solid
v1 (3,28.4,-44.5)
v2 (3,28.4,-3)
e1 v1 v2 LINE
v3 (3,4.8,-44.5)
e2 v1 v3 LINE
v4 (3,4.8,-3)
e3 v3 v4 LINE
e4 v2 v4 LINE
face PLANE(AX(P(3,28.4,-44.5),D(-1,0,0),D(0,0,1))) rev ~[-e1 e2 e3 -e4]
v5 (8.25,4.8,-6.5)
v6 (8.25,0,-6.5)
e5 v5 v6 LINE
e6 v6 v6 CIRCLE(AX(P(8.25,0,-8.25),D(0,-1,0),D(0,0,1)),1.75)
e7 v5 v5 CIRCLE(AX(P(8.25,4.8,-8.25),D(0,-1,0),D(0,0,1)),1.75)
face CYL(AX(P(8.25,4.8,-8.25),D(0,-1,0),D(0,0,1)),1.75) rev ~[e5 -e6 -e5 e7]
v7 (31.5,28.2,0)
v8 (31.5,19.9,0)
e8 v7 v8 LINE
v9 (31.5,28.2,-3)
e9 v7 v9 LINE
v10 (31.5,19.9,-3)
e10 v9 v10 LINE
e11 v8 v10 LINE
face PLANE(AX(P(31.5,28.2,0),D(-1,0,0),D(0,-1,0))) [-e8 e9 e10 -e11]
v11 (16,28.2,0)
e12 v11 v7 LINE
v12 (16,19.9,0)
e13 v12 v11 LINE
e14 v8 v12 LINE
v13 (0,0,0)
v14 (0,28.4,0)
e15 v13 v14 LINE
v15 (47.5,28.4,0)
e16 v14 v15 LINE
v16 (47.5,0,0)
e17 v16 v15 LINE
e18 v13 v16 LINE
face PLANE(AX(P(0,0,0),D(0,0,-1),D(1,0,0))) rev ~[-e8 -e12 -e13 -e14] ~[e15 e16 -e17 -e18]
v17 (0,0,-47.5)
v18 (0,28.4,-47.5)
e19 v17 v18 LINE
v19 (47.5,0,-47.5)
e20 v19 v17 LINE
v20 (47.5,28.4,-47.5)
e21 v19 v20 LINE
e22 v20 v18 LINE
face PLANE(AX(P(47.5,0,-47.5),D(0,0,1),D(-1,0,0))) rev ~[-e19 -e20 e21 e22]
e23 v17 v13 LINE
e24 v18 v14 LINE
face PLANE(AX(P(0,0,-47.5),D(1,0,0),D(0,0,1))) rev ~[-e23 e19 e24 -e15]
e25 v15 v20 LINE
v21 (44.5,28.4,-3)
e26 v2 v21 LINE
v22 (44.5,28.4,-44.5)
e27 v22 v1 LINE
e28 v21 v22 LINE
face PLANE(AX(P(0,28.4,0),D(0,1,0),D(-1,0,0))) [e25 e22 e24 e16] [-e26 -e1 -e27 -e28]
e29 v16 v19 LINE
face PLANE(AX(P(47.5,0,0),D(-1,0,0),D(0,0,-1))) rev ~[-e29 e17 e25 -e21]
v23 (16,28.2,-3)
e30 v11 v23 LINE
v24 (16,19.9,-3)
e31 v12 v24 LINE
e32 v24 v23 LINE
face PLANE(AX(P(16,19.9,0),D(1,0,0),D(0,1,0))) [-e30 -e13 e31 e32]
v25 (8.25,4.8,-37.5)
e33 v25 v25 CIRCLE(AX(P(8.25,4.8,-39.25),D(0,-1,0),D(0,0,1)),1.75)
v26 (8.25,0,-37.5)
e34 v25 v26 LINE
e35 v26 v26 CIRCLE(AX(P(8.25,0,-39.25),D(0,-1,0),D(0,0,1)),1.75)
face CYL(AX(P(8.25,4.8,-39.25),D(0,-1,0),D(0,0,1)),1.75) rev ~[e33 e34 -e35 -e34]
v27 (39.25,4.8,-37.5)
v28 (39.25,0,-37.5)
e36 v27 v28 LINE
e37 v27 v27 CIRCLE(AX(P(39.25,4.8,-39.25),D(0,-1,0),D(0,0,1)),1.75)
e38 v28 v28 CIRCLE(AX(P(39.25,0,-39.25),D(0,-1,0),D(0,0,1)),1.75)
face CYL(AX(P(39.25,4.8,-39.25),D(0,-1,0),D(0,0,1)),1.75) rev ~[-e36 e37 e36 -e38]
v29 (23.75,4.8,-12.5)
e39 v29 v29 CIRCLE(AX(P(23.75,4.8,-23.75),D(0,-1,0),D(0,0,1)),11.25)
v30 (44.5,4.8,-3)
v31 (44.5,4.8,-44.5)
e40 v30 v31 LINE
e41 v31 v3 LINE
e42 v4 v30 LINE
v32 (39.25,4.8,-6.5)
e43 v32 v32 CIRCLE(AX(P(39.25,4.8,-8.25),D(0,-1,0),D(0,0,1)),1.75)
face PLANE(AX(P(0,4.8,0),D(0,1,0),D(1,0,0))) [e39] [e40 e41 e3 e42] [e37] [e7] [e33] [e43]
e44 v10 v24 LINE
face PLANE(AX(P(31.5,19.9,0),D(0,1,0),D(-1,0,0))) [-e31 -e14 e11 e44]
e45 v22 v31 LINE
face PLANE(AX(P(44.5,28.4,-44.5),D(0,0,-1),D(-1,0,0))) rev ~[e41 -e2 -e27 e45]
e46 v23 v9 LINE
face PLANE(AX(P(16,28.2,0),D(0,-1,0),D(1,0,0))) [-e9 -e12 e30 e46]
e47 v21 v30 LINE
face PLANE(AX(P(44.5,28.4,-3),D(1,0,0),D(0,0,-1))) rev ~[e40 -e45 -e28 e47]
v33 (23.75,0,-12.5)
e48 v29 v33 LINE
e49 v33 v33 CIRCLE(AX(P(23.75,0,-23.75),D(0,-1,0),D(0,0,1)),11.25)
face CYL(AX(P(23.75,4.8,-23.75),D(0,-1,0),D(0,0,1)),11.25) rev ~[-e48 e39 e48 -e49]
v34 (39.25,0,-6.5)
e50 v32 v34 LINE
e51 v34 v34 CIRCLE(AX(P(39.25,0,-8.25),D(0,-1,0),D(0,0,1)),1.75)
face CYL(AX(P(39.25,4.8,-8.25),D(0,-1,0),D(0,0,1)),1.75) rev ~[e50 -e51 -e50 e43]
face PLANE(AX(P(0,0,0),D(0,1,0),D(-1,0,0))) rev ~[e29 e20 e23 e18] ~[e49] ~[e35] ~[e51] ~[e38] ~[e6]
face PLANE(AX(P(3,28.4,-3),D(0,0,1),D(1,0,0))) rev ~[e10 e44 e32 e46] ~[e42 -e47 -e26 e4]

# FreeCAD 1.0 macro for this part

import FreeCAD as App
import Part
import Sketcher
from FreeCAD import Vector

doc = App.newDocument("Part")
body = doc.addObject("PartDesign::Body", "Body")

# Sketch on XZ plane
sketch1 = doc.addObject("Sketcher::SketchObject", "Sketch")
body.addObject(sketch1)
sketch1.AttachmentSupport = (doc.XZ_Plane, [""])
sketch1.MapMode = "FlatFace"
sketch1.addGeometry(Part.LineSegment(Vector(0, -48, 0), Vector(0, 0, 0)), False)
sketch1.addGeometry(Part.LineSegment(Vector(0, 0, 0), Vector(48, 0, 0)), False)
sketch1.addGeometry(Part.LineSegment(Vector(48, 0, 0), Vector(48, -48, 0)), False)
sketch1.addGeometry(Part.LineSegment(Vector(48, -48, 0), Vector(0, -48, 0)), False)
sketch1.addConstraint(Sketcher.Constraint("Coincident", 0, 2, 1, 1))
sketch1.addConstraint(Sketcher.Constraint("Coincident", 1, 2, 2, 1))
sketch1.addConstraint(Sketcher.Constraint("Coincident", 2, 2, 3, 1))
sketch1.addConstraint(Sketcher.Constraint("Coincident", 3, 2, 0, 1))
sketch1.addConstraint(Sketcher.Constraint("Vertical", 0))
sketch1.addConstraint(Sketcher.Constraint("Horizontal", 1))
sketch1.addConstraint(Sketcher.Constraint("Vertical", 2))
sketch1.addConstraint(Sketcher.Constraint("Horizontal", 3))
sketch1.addConstraint(Sketcher.Constraint("Coincident", 0, 2, -1, 1))
sketch1.addConstraint(Sketcher.Constraint("Equal", 3, 0))
sketch1.addConstraint(Sketcher.Constraint("DistanceX", 1, 1, 1, 2, 47.5))
pad1 = doc.addObject("PartDesign::Pad", "Pad")
body.addObject(pad1)
pad1.Profile = sketch1
pad1.Length = 28.4
pad1.Reversed = True

# Sketch on XZ plane
sketch2 = doc.addObject("Sketcher::SketchObject", "Sketch001")
body.addObject(sketch2)
sketch2.AttachmentSupport = (doc.XZ_Plane, [""])
sketch2.MapMode = "FlatFace"
sketch2.AttachmentOffset = App.Placement(Vector(0, 0, -28.4), App.Rotation())
sketch2.addGeometry(Part.LineSegment(Vector(3, -44, 0), Vector(3, -3, 0)), False)
sketch2.addGeometry(Part.LineSegment(Vector(3, -3, 0), Vector(44, -3, 0)), False)
sketch2.addGeometry(Part.LineSegment(Vector(44, -3, 0), Vector(44, -44, 0)), False)
sketch2.addGeometry(Part.LineSegment(Vector(44, -44, 0), Vector(3, -44, 0)), False)
sketch2.addConstraint(Sketcher.Constraint("Coincident", 0, 2, 1, 1))
sketch2.addConstraint(Sketcher.Constraint("Coincident", 1, 2, 2, 1))
sketch2.addConstraint(Sketcher.Constraint("Coincident", 2, 2, 3, 1))
sketch2.addConstraint(Sketcher.Constraint("Coincident", 3, 2, 0, 1))
sketch2.addConstraint(Sketcher.Constraint("Vertical", 0))
sketch2.addConstraint(Sketcher.Constraint("Horizontal", 1))
sketch2.addConstraint(Sketcher.Constraint("Vertical", 2))
sketch2.addConstraint(Sketcher.Constraint("Horizontal", 3))
sketch2.addConstraint(Sketcher.Constraint("Equal", 3, 0))
sketch2.addConstraint(Sketcher.Constraint("DistanceX", 1, 1, 1, 2, 41.5))
sketch2.addConstraint(Sketcher.Constraint("DistanceX", -1, 1, 0, 2, 3.0))
sketch2.addConstraint(Sketcher.Constraint("DistanceY", 0, 2, -1, 1, 3.0))
pocket1 = doc.addObject("PartDesign::Pocket", "Pocket")
body.addObject(pocket1)
pocket1.Profile = sketch2
pocket1.Length = 23.6
pocket1.Reversed = True

# Sketch on XZ plane
sketch3 = doc.addObject("Sketcher::SketchObject", "Sketch002")
body.addObject(sketch3)
sketch3.AttachmentSupport = (doc.XZ_Plane, [""])
sketch3.MapMode = "FlatFace"
sketch3.AttachmentOffset = App.Placement(Vector(0, 0, -4.8), App.Rotation())
sketch3.addGeometry(Part.Circle(Vector(24, -24, 0), Vector(0, 0, 1), 11), False)
sketch3.addConstraint(Sketcher.Constraint("Diameter", 0, 22.5))
sketch3.addConstraint(Sketcher.Constraint("DistanceX", -1, 1, 0, 3, 23.75))
sketch3.addConstraint(Sketcher.Constraint("DistanceY", 0, 3, -1, 1, 23.75))
doc.recompute()
hole = doc.addObject("PartDesign::Hole", "Hole")
body.addObject(hole)
hole.Profile = sketch3
hole.ThreadType = "None"
hole.Diameter = 22.5
hole.DepthType = "ThroughAll"
hole.Reversed = True

# Sketch on XZ plane
sketch4 = doc.addObject("Sketcher::SketchObject", "Sketch003")
body.addObject(sketch4)
sketch4.AttachmentSupport = (doc.XZ_Plane, [""])
sketch4.MapMode = "FlatFace"
sketch4.AttachmentOffset = App.Placement(Vector(0, 0, -4.8), App.Rotation())
sketch4.addGeometry(Part.Circle(Vector(8.2, -39.2, 0), Vector(0, 0, 1), 1.8), False)
sketch4.addGeometry(Part.Circle(Vector(39.2, -39.2, 0), Vector(0, 0, 1), 1.8), False)
sketch4.addGeometry(Part.Circle(Vector(39.2, -8.2, 0), Vector(0, 0, 1), 1.8), False)
sketch4.addGeometry(Part.Circle(Vector(8.2, -8.2, 0), Vector(0, 0, 1), 1.8), False)
sketch4.addConstraint(Sketcher.Constraint("Equal", 0, 1))
sketch4.addConstraint(Sketcher.Constraint("Equal", 1, 2))
sketch4.addConstraint(Sketcher.Constraint("Equal", 2, 3))
sketch4.addConstraint(Sketcher.Constraint("Horizontal", 0, 3, 1, 3))
sketch4.addConstraint(Sketcher.Constraint("Horizontal", 2, 3, 3, 3))
sketch4.addConstraint(Sketcher.Constraint("Vertical", 1, 3, 2, 3))
sketch4.addConstraint(Sketcher.Constraint("Vertical", 0, 3, 3, 3))
sketch4.addConstraint(Sketcher.Constraint("Diameter", 0, 3.5))
sketch4.addConstraint(Sketcher.Constraint("DistanceX", 0, 3, 1, 3, 31.0))
sketch4.addConstraint(Sketcher.Constraint("DistanceY", 1, 3, 2, 3, 31.0))
sketch4.addConstraint(Sketcher.Constraint("DistanceX", -1, 1, 0, 3, 8.25))
sketch4.addConstraint(Sketcher.Constraint("DistanceY", 0, 3, -1, 1, 39.25))
doc.recompute()
hole2 = doc.addObject("PartDesign::Hole", "Hole001")
body.addObject(hole2)
hole2.Profile = sketch4
hole2.ThreadType = "None"
hole2.Diameter = 3.5
hole2.DepthType = "ThroughAll"
hole2.Reversed = True

# Sketch on XY plane
sketch5 = doc.addObject("Sketcher::SketchObject", "Sketch004")
body.addObject(sketch5)
sketch5.AttachmentSupport = (doc.XY_Plane, [""])
sketch5.MapMode = "FlatFace"
sketch5.addGeometry(Part.LineSegment(Vector(32, 28, 0), Vector(16, 28, 0)), False)
sketch5.addGeometry(Part.LineSegment(Vector(16, 28, 0), Vector(16, 20, 0)), False)
sketch5.addGeometry(Part.LineSegment(Vector(16, 20, 0), Vector(32, 20, 0)), False)
sketch5.addGeometry(Part.LineSegment(Vector(32, 20, 0), Vector(32, 28, 0)), False)
sketch5.addConstraint(Sketcher.Constraint("Coincident", 0, 2, 1, 1))
sketch5.addConstraint(Sketcher.Constraint("Coincident", 1, 2, 2, 1))
sketch5.addConstraint(Sketcher.Constraint("Coincident", 2, 2, 3, 1))
sketch5.addConstraint(Sketcher.Constraint("Coincident", 3, 2, 0, 1))
sketch5.addConstraint(Sketcher.Constraint("Horizontal", 0))
sketch5.addConstraint(Sketcher.Constraint("Vertical", 1))
sketch5.addConstraint(Sketcher.Constraint("Horizontal", 2))
sketch5.addConstraint(Sketcher.Constraint("Vertical", 3))
sketch5.addConstraint(Sketcher.Constraint("DistanceX", 0, 2, 0, 1, 15.5))
sketch5.addConstraint(Sketcher.Constraint("DistanceY", -1, 1, 1, 2, 19.9))
sketch5.addConstraint(Sketcher.Constraint("DistanceY", 1, 2, 1, 1, 8.3))
sketch5.addConstraint(Sketcher.Constraint("DistanceX", -1, 1, 0, 2, 16.0))
pocket2 = doc.addObject("PartDesign::Pocket", "Pocket001")
body.addObject(pocket2)
pocket2.Profile = sketch5
pocket2.Length = 23.6

doc.recompute()
